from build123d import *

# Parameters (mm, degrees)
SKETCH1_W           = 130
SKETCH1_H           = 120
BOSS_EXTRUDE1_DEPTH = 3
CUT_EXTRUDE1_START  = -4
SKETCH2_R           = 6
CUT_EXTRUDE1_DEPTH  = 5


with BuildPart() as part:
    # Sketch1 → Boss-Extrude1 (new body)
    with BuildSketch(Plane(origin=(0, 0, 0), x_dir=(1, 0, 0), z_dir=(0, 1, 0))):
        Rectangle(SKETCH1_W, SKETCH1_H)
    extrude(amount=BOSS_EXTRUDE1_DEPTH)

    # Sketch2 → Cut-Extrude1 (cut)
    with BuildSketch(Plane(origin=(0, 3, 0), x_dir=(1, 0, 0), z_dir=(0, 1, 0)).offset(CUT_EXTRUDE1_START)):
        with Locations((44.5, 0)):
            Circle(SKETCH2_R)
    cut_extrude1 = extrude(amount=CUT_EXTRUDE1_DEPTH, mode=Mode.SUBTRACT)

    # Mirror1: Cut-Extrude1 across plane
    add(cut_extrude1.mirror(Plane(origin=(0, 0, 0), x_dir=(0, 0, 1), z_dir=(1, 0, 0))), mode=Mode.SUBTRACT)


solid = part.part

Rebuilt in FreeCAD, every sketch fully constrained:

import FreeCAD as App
import Part
import Sketcher
Q = App.Units.Quantity


def add_polygon(sketch, points):
    """Adds a closed chain of lines whose ends are joined by coincident constraints."""
    first, n = sketch.GeometryCount, len(points)
    for a, b in zip(points, points[1:] + points[:1]):
        sketch.addGeometry(Part.LineSegment(App.Vector(*a, 0), App.Vector(*b, 0)), False)
    for i in range(n):
        sketch.addConstraint(Sketcher.Constraint("Coincident", first + i, 2, first + (i + 1) % n, 1))

doc = App.newDocument("Part")
body = doc.addObject("PartDesign::Body", "Body")

sketch1 = body.newObject("Sketcher::SketchObject", "Sketch")
sketch1.AttachmentSupport = (doc.getObject("XZ_Plane"), [""])
sketch1.MapMode = "FlatFace"
add_polygon(sketch1, [(-65, -60), (-65, 60), (65, 60), (65, -60)])
sketch1.addConstraint(Sketcher.Constraint("Vertical", 0))
sketch1.addConstraint(Sketcher.Constraint("Horizontal", 1))
sketch1.addConstraint(Sketcher.Constraint("Vertical", 2))
sketch1.addConstraint(Sketcher.Constraint("Horizontal", 3))
sketch1.addConstraint(Sketcher.Constraint("Symmetric", 0, 2, 2, 2, -1, 1))
sketch1.addConstraint(Sketcher.Constraint("DistanceX", 1, 1, 1, 2, Q("130 mm")))
sketch1.addConstraint(Sketcher.Constraint("DistanceY", 0, 1, 0, 2, Q("120 mm")))
pad1 = body.newObject("PartDesign::Pad", "Pad")
pad1.Profile = sketch1
pad1.Length = 3
pad1.Reversed = True

sketch2 = body.newObject("Sketcher::SketchObject", "Sketch001")
sketch2.AttachmentSupport = (doc.getObject("XZ_Plane"), [""])
sketch2.MapMode = "FlatFace"
sketch2.AttachmentOffset = App.Placement(App.Vector(0, 0, 1), App.Rotation())
sketch2.addGeometry(Part.Circle(App.Vector(44, 0, 0), App.Vector(0, 0, 1), 6), False)
sketch2.addConstraint(Sketcher.Constraint("PointOnObject", 0, 3, -1))
sketch2.addConstraint(Sketcher.Constraint("Diameter", 0, Q("12 mm")))
sketch2.addConstraint(Sketcher.Constraint("DistanceX", -1, 1, 0, 3, Q("44.5 mm")))
pocket1 = body.newObject("PartDesign::Pocket", "Pocket")
pocket1.Profile = sketch2
pocket1.Length = 5
doc.recompute()

mirrored = body.newObject("PartDesign::Mirrored", "Mirrored")
mirrored.Originals = [pocket1]
mirrored.MirrorPlane = (doc.getObject("YZ_Plane"), [""])
body.Tip = mirrored

doc.recompute()
